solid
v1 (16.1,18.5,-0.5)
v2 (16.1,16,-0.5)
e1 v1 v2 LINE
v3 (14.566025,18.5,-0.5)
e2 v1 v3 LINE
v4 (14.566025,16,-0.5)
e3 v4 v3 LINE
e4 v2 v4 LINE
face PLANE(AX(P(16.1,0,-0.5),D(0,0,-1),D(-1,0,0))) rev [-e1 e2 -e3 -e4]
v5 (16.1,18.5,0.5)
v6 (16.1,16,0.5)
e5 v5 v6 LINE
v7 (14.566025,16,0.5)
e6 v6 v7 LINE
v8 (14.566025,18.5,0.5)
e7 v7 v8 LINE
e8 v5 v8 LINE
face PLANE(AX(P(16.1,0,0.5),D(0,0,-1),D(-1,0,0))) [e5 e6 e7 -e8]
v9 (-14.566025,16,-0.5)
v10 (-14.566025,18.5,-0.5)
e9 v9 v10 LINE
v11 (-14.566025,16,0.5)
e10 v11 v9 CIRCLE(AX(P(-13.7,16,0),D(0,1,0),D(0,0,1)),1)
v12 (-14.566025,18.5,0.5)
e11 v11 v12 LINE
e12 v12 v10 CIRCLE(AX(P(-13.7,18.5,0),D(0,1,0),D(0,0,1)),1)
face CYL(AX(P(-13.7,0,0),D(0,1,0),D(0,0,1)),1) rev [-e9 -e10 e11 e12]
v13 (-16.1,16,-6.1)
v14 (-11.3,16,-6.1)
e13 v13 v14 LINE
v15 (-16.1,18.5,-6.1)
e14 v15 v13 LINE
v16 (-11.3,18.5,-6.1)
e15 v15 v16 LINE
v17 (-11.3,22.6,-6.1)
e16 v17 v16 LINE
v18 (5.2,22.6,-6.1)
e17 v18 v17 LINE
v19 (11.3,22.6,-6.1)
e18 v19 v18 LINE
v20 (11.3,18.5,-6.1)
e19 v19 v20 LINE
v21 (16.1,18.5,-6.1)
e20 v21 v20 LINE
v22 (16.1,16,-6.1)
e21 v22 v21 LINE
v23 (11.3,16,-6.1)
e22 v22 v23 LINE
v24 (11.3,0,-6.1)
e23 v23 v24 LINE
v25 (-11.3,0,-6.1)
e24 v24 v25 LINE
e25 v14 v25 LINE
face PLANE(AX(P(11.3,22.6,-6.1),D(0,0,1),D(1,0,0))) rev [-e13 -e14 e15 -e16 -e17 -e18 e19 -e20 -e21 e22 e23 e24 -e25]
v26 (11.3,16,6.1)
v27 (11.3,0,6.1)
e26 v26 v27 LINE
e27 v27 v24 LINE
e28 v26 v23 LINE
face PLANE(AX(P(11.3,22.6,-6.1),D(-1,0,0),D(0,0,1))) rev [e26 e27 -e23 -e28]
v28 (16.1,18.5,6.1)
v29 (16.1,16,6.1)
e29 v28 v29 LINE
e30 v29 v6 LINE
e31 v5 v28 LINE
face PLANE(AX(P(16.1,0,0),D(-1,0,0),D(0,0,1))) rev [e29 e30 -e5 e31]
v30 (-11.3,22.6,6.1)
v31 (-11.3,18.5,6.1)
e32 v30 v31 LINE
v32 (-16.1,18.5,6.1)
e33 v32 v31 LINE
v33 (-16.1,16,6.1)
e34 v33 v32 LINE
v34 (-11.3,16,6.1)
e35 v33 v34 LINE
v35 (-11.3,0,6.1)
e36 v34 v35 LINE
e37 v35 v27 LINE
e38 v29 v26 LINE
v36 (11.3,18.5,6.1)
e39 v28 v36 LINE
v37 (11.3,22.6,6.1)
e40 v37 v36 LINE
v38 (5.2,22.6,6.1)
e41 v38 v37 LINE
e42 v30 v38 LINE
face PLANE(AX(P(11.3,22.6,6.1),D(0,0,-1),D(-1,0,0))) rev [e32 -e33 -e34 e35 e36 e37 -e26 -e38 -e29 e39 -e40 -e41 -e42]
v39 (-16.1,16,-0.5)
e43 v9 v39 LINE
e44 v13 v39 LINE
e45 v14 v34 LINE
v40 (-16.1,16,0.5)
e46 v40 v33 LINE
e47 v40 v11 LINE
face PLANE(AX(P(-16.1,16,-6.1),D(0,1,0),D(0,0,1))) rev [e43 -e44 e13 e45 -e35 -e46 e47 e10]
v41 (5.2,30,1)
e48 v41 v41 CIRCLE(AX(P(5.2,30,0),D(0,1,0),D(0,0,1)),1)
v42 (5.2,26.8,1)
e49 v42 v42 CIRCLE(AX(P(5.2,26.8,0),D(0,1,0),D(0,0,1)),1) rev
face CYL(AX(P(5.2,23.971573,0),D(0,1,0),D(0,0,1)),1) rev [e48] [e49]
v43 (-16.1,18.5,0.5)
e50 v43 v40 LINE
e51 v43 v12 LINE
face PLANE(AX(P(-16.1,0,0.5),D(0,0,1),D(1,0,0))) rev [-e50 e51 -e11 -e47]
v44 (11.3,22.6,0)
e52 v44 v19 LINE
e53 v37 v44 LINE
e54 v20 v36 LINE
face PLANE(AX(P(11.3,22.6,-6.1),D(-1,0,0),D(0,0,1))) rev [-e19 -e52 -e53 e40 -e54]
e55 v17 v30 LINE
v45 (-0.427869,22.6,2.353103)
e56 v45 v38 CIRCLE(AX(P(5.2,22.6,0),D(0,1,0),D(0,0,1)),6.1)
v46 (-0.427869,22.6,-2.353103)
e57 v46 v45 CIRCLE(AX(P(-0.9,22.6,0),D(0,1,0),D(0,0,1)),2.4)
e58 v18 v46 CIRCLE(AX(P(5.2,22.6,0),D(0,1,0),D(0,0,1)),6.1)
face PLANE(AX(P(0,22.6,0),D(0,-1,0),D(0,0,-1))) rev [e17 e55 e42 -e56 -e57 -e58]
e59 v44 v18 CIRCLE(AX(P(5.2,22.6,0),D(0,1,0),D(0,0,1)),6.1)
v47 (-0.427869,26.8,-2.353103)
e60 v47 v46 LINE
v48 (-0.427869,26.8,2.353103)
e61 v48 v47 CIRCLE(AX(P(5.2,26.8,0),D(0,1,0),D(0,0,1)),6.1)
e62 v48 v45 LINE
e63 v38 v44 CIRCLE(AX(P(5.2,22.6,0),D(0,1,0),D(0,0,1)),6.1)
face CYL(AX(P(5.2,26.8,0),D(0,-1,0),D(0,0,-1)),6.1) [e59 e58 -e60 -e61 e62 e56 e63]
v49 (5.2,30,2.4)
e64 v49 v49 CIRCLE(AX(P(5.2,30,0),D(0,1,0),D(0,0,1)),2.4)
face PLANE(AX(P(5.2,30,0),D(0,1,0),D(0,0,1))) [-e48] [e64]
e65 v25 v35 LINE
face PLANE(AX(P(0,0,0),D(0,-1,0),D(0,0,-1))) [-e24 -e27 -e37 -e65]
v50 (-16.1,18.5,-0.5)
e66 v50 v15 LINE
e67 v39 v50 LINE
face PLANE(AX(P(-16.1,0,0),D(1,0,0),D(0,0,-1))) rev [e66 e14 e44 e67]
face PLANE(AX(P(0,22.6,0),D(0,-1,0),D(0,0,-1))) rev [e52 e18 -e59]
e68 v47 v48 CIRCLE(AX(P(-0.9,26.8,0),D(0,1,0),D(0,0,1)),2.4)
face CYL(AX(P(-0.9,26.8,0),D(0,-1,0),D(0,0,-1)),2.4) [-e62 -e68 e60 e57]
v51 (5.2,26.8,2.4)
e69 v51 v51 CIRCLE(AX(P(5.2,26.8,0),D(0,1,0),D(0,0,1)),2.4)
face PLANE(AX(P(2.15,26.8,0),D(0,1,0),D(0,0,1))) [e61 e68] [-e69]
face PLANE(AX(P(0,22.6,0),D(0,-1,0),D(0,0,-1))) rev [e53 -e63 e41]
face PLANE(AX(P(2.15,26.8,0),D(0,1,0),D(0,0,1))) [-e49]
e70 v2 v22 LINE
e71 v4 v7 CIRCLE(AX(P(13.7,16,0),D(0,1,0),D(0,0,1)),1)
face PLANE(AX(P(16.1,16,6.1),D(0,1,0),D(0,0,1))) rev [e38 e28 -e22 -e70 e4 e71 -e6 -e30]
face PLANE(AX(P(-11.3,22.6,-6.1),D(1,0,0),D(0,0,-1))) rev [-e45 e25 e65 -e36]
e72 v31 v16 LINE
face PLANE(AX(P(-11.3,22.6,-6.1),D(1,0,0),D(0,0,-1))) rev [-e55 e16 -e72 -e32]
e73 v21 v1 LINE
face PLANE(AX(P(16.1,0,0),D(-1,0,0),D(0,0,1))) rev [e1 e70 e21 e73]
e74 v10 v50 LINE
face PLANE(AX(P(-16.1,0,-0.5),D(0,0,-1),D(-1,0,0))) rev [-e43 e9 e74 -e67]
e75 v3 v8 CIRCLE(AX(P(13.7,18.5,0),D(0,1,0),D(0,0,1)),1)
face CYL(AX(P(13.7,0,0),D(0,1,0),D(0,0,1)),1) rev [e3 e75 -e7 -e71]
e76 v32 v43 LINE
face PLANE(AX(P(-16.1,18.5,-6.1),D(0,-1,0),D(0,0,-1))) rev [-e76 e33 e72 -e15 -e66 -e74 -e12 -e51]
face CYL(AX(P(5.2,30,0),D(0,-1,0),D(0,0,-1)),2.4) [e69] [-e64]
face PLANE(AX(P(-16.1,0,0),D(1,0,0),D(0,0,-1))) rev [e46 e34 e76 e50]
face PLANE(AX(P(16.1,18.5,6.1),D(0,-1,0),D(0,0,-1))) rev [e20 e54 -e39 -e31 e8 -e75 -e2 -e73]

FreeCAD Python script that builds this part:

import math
import FreeCAD as App
import Part
import Sketcher
from FreeCAD import Vector


def add_polygon(sketch, points):
    """Adds a closed chain of lines whose ends are joined by coincident constraints."""
    first, n = sketch.GeometryCount, len(points)
    for a, b in zip(points, points[1:] + points[:1]):
        sketch.addGeometry(Part.LineSegment(App.Vector(*a, 0), App.Vector(*b, 0)), False)
    for i in range(n):
        sketch.addConstraint(Sketcher.Constraint("Coincident", first + i, 2, first + (i + 1) % n, 1))

doc = App.newDocument("Part")
body = doc.addObject("PartDesign::Body", "Body")

# Sketch on XZ plane
sketch1 = body.newObject("Sketcher::SketchObject", "Sketch")
sketch1.AttachmentSupport = (doc.getObject("XZ_Plane"), [""])
sketch1.MapMode = "FlatFace"
add_polygon(sketch1, [(-11, -6), (-11, 6), (11, 6), (11, -6)])  # lines 0-3
sketch1.addConstraint(Sketcher.Constraint("Vertical", 0))
sketch1.addConstraint(Sketcher.Constraint("Horizontal", 1))
sketch1.addConstraint(Sketcher.Constraint("Vertical", 2))
sketch1.addConstraint(Sketcher.Constraint("Horizontal", 3))
sketch1.addConstraint(Sketcher.Constraint("Symmetric", 0, 2, 2, 2, -1, 1))
sketch1.addConstraint(Sketcher.Constraint("DistanceX", 1, 1, 1, 2, 22.6))
sketch1.addConstraint(Sketcher.Constraint("DistanceY", 0, 1, 0, 2, 12.2))
pad1 = body.newObject("PartDesign::Pad", "Pad")
pad1.Profile = sketch1
pad1.Length = 22.6
pad1.Reversed = True

# Sketch on YZ plane
sketch2 = body.newObject("Sketcher::SketchObject", "Sketch001")
sketch2.AttachmentSupport = (doc.getObject("YZ_Plane"), [""])
sketch2.MapMode = "FlatFace"
sketch2.AttachmentOffset = App.Placement(Vector(0, 0, -11.3), App.Rotation())
add_polygon(sketch2, [(18.5, -6.1), (16, -6.1), (16, 6.1), (18.5, 6.1)])  # lines 0-3
sketch2.addConstraint(Sketcher.Constraint("Horizontal", 0))
sketch2.addConstraint(Sketcher.Constraint("Vertical", 1))
sketch2.addConstraint(Sketcher.Constraint("Horizontal", 2))
sketch2.addConstraint(Sketcher.Constraint("Vertical", 3))
sketch2.addConstraint(Sketcher.Constraint("DistanceX", 0, 2, 0, 1, 2.5))
sketch2.addConstraint(Sketcher.Constraint("DistanceY", 1, 1, 1, 2, 12.2))
sketch2.addConstraint(Sketcher.Constraint("DistanceX", -1, 1, 0, 2, 16.0))
sketch2.addConstraint(Sketcher.Constraint("DistanceY", 0, 2, -1, 1, 6.1))
pad2 = body.newObject("PartDesign::Pad", "Pad001")
pad2.Profile = sketch2
pad2.Length = 4.8
pad2.Reversed = True

# Sketch on YZ plane
sketch3 = body.newObject("Sketcher::SketchObject", "Sketch002")
sketch3.AttachmentSupport = (doc.getObject("YZ_Plane"), [""])
sketch3.MapMode = "FlatFace"
sketch3.AttachmentOffset = App.Placement(Vector(0, 0, 11.3), App.Rotation())
add_polygon(sketch3, [(18.5, 6.1), (16, 6.1), (16, -6.1), (18.5, -6.1)])  # lines 0-3
sketch3.addConstraint(Sketcher.Constraint("Horizontal", 0))
sketch3.addConstraint(Sketcher.Constraint("Vertical", 1))
sketch3.addConstraint(Sketcher.Constraint("Horizontal", 2))
sketch3.addConstraint(Sketcher.Constraint("Vertical", 3))
sketch3.addConstraint(Sketcher.Constraint("DistanceX", 0, 2, 0, 1, 2.5))
sketch3.addConstraint(Sketcher.Constraint("DistanceY", 1, 2, 1, 1, 12.2))
sketch3.addConstraint(Sketcher.Constraint("DistanceX", -1, 1, 0, 2, 16.0))
sketch3.addConstraint(Sketcher.Constraint("DistanceY", -1, 1, 0, 2, 6.1))
pad3 = body.newObject("PartDesign::Pad", "Pad002")
pad3.Profile = sketch3
pad3.Length = 4.8

# Sketch on XZ plane
sketch4 = body.newObject("Sketcher::SketchObject", "Sketch003")
sketch4.AttachmentSupport = (doc.getObject("XZ_Plane"), [""])
sketch4.MapMode = "FlatFace"
sketch4.AttachmentOffset = App.Placement(Vector(0, 0, -22.6), App.Rotation())
sketch4.addGeometry(Part.ArcOfCircle(Part.Circle(Vector(5.2, 0, 0), Vector(0, 0, 1), 6.1), math.radians(-157), math.radians(157)), False)
sketch4.addGeometry(Part.ArcOfCircle(Part.Circle(Vector(-0.9, 0, 0), Vector(0, 0, 1), 2.4), math.radians(79), math.radians(281)), False)
sketch4.addConstraint(Sketcher.Constraint("Coincident", 0, 1, 1, 2))
sketch4.addConstraint(Sketcher.Constraint("Coincident", 1, 1, 0, 2))
sketch4.addConstraint(Sketcher.Constraint("Symmetric", 0, 1, 1, 1, -1))
sketch4.addConstraint(Sketcher.Constraint("Radius", 0, 6.1))
sketch4.addConstraint(Sketcher.Constraint("Radius", 1, 2.4))
sketch4.addConstraint(Sketcher.Constraint("DistanceX", -1, 1, 0, 3, 5.2))
sketch4.addConstraint(Sketcher.Constraint("DistanceX", 1, 3, -1, 1, 0.9))
pad4 = body.newObject("PartDesign::Pad", "Pad003")
pad4.Profile = sketch4
pad4.Length = 4.2
pad4.Reversed = True

# Sketch on XZ plane
sketch5 = body.newObject("Sketcher::SketchObject", "Sketch004")
sketch5.AttachmentSupport = (doc.getObject("XZ_Plane"), [""])
sketch5.MapMode = "FlatFace"
sketch5.AttachmentOffset = App.Placement(Vector(0, 0, -26.8), App.Rotation())
sketch5.addGeometry(Part.Circle(Vector(5.2, 0, 0), Vector(0, 0, 1), 2.4), False)
sketch5.addConstraint(Sketcher.Constraint("PointOnObject", 0, 3, -1))
sketch5.addConstraint(Sketcher.Constraint("Diameter", 0, 4.8))
sketch5.addConstraint(Sketcher.Constraint("DistanceX", -1, 1, 0, 3, 5.2))
pad5 = body.newObject("PartDesign::Pad", "Pad004")
pad5.Profile = sketch5
pad5.Length = 3.2
pad5.Reversed = True

# Sketch on XZ plane
sketch6 = body.newObject("Sketcher::SketchObject", "Sketch005")
sketch6.AttachmentSupport = (doc.getObject("XZ_Plane"), [""])
sketch6.MapMode = "FlatFace"
sketch6.AttachmentOffset = App.Placement(Vector(0, 0, -30), App.Rotation())
sketch6.addGeometry(Part.Circle(Vector(5.2, 0, 0), Vector(0, 0, 1), 1), False)
sketch6.addConstraint(Sketcher.Constraint("PointOnObject", 0, 3, -1))
sketch6.addConstraint(Sketcher.Constraint("Diameter", 0, 2.0))
sketch6.addConstraint(Sketcher.Constraint("DistanceX", -1, 1, 0, 3, 5.2))
pocket1 = body.newObject("PartDesign::Pocket", "Pocket")
pocket1.Profile = sketch6
pocket1.Length = 3.2
pocket1.Reversed = True

# Sketch on XZ plane
sketch7 = body.newObject("Sketcher::SketchObject", "Sketch006")
sketch7.AttachmentSupport = (doc.getObject("XZ_Plane"), [""])
sketch7.MapMode = "FlatFace"
sketch7.AttachmentOffset = App.Placement(Vector(0, 0, -18.5), App.Rotation())
sketch7.addGeometry(Part.LineSegment(Vector(16.1, 0.5, 0), Vector(16.1, -0.5, 0)), False)
sketch7.addGeometry(Part.LineSegment(Vector(16.1, -0.5, 0), Vector(14.6, -0.5, 0)), False)
sketch7.addGeometry(Part.ArcOfCircle(Part.Circle(Vector(13.7, 0, 0), Vector(0, 0, 1), 1), math.radians(30), math.radians(330)), False)
sketch7.addGeometry(Part.LineSegment(Vector(14.6, 0.5, 0), Vector(16.1, 0.5, 0)), False)
sketch7.addConstraint(Sketcher.Constraint("Coincident", 0, 2, 1, 1))
sketch7.addConstraint(Sketcher.Constraint("Coincident", 1, 2, 2, 2))
sketch7.addConstraint(Sketcher.Constraint("Coincident", 2, 1, 3, 1))
sketch7.addConstraint(Sketcher.Constraint("Coincident", 3, 2, 0, 1))
sketch7.addConstraint(Sketcher.Constraint("Vertical", 0))
sketch7.addConstraint(Sketcher.Constraint("Horizontal", 1))
sketch7.addConstraint(Sketcher.Constraint("Horizontal", 3))
sketch7.addConstraint(Sketcher.Constraint("Symmetric", 1, 2, 2, 1, -1))
sketch7.addConstraint(Sketcher.Constraint("Radius", 2, 1.0))
sketch7.addConstraint(Sketcher.Constraint("DistanceY", 0, 2, 0, 1, 1.0))
sketch7.addConstraint(Sketcher.Constraint("DistanceX", -1, 1, 2, 3, 13.7))
sketch7.addConstraint(Sketcher.Constraint("DistanceX", -1, 1, 0, 2, 16.1))
pocket2 = body.newObject("PartDesign::Pocket", "Pocket001")
pocket2.Profile = sketch7
pocket2.Type = "ThroughAll"
pocket2.Reversed = True

# Sketch on XZ plane
sketch8 = body.newObject("Sketcher::SketchObject", "Sketch007")
sketch8.AttachmentSupport = (doc.getObject("XZ_Plane"), [""])
sketch8.MapMode = "FlatFace"
sketch8.AttachmentOffset = App.Placement(Vector(0, 0, -18.5), App.Rotation())
sketch8.addGeometry(Part.LineSegment(Vector(-16.1, -0.5, 0), Vector(-16.1, 0.5, 0)), False)
sketch8.addGeometry(Part.LineSegment(Vector(-16.1, 0.5, 0), Vector(-14.6, 0.5, 0)), False)
sketch8.addGeometry(Part.ArcOfCircle(Part.Circle(Vector(-13.7, 0, 0), Vector(0, 0, 1), 1), math.radians(-150), math.radians(150)), False)
sketch8.addGeometry(Part.LineSegment(Vector(-14.6, -0.5, 0), Vector(-16.1, -0.5, 0)), False)
sketch8.addConstraint(Sketcher.Constraint("Coincident", 0, 2, 1, 1))
sketch8.addConstraint(Sketcher.Constraint("Coincident", 1, 2, 2, 2))
sketch8.addConstraint(Sketcher.Constraint("Coincident", 2, 1, 3, 1))
sketch8.addConstraint(Sketcher.Constraint("Coincident", 3, 2, 0, 1))
sketch8.addConstraint(Sketcher.Constraint("Vertical", 0))
sketch8.addConstraint(Sketcher.Constraint("Horizontal", 1))
sketch8.addConstraint(Sketcher.Constraint("Horizontal", 3))
sketch8.addConstraint(Sketcher.Constraint("Symmetric", 1, 2, 2, 1, -1))
sketch8.addConstraint(Sketcher.Constraint("Radius", 2, 1.0))
sketch8.addConstraint(Sketcher.Constraint("DistanceY", 0, 1, 0, 2, 1.0))
sketch8.addConstraint(Sketcher.Constraint("DistanceX", 2, 3, -1, 1, 13.7))
sketch8.addConstraint(Sketcher.Constraint("DistanceX", 0, 2, -1, 1, 16.1))
pocket3 = body.newObject("PartDesign::Pocket", "Pocket002")
pocket3.Profile = sketch8
pocket3.Type = "ThroughAll"
pocket3.Reversed = True

doc.recompute()
